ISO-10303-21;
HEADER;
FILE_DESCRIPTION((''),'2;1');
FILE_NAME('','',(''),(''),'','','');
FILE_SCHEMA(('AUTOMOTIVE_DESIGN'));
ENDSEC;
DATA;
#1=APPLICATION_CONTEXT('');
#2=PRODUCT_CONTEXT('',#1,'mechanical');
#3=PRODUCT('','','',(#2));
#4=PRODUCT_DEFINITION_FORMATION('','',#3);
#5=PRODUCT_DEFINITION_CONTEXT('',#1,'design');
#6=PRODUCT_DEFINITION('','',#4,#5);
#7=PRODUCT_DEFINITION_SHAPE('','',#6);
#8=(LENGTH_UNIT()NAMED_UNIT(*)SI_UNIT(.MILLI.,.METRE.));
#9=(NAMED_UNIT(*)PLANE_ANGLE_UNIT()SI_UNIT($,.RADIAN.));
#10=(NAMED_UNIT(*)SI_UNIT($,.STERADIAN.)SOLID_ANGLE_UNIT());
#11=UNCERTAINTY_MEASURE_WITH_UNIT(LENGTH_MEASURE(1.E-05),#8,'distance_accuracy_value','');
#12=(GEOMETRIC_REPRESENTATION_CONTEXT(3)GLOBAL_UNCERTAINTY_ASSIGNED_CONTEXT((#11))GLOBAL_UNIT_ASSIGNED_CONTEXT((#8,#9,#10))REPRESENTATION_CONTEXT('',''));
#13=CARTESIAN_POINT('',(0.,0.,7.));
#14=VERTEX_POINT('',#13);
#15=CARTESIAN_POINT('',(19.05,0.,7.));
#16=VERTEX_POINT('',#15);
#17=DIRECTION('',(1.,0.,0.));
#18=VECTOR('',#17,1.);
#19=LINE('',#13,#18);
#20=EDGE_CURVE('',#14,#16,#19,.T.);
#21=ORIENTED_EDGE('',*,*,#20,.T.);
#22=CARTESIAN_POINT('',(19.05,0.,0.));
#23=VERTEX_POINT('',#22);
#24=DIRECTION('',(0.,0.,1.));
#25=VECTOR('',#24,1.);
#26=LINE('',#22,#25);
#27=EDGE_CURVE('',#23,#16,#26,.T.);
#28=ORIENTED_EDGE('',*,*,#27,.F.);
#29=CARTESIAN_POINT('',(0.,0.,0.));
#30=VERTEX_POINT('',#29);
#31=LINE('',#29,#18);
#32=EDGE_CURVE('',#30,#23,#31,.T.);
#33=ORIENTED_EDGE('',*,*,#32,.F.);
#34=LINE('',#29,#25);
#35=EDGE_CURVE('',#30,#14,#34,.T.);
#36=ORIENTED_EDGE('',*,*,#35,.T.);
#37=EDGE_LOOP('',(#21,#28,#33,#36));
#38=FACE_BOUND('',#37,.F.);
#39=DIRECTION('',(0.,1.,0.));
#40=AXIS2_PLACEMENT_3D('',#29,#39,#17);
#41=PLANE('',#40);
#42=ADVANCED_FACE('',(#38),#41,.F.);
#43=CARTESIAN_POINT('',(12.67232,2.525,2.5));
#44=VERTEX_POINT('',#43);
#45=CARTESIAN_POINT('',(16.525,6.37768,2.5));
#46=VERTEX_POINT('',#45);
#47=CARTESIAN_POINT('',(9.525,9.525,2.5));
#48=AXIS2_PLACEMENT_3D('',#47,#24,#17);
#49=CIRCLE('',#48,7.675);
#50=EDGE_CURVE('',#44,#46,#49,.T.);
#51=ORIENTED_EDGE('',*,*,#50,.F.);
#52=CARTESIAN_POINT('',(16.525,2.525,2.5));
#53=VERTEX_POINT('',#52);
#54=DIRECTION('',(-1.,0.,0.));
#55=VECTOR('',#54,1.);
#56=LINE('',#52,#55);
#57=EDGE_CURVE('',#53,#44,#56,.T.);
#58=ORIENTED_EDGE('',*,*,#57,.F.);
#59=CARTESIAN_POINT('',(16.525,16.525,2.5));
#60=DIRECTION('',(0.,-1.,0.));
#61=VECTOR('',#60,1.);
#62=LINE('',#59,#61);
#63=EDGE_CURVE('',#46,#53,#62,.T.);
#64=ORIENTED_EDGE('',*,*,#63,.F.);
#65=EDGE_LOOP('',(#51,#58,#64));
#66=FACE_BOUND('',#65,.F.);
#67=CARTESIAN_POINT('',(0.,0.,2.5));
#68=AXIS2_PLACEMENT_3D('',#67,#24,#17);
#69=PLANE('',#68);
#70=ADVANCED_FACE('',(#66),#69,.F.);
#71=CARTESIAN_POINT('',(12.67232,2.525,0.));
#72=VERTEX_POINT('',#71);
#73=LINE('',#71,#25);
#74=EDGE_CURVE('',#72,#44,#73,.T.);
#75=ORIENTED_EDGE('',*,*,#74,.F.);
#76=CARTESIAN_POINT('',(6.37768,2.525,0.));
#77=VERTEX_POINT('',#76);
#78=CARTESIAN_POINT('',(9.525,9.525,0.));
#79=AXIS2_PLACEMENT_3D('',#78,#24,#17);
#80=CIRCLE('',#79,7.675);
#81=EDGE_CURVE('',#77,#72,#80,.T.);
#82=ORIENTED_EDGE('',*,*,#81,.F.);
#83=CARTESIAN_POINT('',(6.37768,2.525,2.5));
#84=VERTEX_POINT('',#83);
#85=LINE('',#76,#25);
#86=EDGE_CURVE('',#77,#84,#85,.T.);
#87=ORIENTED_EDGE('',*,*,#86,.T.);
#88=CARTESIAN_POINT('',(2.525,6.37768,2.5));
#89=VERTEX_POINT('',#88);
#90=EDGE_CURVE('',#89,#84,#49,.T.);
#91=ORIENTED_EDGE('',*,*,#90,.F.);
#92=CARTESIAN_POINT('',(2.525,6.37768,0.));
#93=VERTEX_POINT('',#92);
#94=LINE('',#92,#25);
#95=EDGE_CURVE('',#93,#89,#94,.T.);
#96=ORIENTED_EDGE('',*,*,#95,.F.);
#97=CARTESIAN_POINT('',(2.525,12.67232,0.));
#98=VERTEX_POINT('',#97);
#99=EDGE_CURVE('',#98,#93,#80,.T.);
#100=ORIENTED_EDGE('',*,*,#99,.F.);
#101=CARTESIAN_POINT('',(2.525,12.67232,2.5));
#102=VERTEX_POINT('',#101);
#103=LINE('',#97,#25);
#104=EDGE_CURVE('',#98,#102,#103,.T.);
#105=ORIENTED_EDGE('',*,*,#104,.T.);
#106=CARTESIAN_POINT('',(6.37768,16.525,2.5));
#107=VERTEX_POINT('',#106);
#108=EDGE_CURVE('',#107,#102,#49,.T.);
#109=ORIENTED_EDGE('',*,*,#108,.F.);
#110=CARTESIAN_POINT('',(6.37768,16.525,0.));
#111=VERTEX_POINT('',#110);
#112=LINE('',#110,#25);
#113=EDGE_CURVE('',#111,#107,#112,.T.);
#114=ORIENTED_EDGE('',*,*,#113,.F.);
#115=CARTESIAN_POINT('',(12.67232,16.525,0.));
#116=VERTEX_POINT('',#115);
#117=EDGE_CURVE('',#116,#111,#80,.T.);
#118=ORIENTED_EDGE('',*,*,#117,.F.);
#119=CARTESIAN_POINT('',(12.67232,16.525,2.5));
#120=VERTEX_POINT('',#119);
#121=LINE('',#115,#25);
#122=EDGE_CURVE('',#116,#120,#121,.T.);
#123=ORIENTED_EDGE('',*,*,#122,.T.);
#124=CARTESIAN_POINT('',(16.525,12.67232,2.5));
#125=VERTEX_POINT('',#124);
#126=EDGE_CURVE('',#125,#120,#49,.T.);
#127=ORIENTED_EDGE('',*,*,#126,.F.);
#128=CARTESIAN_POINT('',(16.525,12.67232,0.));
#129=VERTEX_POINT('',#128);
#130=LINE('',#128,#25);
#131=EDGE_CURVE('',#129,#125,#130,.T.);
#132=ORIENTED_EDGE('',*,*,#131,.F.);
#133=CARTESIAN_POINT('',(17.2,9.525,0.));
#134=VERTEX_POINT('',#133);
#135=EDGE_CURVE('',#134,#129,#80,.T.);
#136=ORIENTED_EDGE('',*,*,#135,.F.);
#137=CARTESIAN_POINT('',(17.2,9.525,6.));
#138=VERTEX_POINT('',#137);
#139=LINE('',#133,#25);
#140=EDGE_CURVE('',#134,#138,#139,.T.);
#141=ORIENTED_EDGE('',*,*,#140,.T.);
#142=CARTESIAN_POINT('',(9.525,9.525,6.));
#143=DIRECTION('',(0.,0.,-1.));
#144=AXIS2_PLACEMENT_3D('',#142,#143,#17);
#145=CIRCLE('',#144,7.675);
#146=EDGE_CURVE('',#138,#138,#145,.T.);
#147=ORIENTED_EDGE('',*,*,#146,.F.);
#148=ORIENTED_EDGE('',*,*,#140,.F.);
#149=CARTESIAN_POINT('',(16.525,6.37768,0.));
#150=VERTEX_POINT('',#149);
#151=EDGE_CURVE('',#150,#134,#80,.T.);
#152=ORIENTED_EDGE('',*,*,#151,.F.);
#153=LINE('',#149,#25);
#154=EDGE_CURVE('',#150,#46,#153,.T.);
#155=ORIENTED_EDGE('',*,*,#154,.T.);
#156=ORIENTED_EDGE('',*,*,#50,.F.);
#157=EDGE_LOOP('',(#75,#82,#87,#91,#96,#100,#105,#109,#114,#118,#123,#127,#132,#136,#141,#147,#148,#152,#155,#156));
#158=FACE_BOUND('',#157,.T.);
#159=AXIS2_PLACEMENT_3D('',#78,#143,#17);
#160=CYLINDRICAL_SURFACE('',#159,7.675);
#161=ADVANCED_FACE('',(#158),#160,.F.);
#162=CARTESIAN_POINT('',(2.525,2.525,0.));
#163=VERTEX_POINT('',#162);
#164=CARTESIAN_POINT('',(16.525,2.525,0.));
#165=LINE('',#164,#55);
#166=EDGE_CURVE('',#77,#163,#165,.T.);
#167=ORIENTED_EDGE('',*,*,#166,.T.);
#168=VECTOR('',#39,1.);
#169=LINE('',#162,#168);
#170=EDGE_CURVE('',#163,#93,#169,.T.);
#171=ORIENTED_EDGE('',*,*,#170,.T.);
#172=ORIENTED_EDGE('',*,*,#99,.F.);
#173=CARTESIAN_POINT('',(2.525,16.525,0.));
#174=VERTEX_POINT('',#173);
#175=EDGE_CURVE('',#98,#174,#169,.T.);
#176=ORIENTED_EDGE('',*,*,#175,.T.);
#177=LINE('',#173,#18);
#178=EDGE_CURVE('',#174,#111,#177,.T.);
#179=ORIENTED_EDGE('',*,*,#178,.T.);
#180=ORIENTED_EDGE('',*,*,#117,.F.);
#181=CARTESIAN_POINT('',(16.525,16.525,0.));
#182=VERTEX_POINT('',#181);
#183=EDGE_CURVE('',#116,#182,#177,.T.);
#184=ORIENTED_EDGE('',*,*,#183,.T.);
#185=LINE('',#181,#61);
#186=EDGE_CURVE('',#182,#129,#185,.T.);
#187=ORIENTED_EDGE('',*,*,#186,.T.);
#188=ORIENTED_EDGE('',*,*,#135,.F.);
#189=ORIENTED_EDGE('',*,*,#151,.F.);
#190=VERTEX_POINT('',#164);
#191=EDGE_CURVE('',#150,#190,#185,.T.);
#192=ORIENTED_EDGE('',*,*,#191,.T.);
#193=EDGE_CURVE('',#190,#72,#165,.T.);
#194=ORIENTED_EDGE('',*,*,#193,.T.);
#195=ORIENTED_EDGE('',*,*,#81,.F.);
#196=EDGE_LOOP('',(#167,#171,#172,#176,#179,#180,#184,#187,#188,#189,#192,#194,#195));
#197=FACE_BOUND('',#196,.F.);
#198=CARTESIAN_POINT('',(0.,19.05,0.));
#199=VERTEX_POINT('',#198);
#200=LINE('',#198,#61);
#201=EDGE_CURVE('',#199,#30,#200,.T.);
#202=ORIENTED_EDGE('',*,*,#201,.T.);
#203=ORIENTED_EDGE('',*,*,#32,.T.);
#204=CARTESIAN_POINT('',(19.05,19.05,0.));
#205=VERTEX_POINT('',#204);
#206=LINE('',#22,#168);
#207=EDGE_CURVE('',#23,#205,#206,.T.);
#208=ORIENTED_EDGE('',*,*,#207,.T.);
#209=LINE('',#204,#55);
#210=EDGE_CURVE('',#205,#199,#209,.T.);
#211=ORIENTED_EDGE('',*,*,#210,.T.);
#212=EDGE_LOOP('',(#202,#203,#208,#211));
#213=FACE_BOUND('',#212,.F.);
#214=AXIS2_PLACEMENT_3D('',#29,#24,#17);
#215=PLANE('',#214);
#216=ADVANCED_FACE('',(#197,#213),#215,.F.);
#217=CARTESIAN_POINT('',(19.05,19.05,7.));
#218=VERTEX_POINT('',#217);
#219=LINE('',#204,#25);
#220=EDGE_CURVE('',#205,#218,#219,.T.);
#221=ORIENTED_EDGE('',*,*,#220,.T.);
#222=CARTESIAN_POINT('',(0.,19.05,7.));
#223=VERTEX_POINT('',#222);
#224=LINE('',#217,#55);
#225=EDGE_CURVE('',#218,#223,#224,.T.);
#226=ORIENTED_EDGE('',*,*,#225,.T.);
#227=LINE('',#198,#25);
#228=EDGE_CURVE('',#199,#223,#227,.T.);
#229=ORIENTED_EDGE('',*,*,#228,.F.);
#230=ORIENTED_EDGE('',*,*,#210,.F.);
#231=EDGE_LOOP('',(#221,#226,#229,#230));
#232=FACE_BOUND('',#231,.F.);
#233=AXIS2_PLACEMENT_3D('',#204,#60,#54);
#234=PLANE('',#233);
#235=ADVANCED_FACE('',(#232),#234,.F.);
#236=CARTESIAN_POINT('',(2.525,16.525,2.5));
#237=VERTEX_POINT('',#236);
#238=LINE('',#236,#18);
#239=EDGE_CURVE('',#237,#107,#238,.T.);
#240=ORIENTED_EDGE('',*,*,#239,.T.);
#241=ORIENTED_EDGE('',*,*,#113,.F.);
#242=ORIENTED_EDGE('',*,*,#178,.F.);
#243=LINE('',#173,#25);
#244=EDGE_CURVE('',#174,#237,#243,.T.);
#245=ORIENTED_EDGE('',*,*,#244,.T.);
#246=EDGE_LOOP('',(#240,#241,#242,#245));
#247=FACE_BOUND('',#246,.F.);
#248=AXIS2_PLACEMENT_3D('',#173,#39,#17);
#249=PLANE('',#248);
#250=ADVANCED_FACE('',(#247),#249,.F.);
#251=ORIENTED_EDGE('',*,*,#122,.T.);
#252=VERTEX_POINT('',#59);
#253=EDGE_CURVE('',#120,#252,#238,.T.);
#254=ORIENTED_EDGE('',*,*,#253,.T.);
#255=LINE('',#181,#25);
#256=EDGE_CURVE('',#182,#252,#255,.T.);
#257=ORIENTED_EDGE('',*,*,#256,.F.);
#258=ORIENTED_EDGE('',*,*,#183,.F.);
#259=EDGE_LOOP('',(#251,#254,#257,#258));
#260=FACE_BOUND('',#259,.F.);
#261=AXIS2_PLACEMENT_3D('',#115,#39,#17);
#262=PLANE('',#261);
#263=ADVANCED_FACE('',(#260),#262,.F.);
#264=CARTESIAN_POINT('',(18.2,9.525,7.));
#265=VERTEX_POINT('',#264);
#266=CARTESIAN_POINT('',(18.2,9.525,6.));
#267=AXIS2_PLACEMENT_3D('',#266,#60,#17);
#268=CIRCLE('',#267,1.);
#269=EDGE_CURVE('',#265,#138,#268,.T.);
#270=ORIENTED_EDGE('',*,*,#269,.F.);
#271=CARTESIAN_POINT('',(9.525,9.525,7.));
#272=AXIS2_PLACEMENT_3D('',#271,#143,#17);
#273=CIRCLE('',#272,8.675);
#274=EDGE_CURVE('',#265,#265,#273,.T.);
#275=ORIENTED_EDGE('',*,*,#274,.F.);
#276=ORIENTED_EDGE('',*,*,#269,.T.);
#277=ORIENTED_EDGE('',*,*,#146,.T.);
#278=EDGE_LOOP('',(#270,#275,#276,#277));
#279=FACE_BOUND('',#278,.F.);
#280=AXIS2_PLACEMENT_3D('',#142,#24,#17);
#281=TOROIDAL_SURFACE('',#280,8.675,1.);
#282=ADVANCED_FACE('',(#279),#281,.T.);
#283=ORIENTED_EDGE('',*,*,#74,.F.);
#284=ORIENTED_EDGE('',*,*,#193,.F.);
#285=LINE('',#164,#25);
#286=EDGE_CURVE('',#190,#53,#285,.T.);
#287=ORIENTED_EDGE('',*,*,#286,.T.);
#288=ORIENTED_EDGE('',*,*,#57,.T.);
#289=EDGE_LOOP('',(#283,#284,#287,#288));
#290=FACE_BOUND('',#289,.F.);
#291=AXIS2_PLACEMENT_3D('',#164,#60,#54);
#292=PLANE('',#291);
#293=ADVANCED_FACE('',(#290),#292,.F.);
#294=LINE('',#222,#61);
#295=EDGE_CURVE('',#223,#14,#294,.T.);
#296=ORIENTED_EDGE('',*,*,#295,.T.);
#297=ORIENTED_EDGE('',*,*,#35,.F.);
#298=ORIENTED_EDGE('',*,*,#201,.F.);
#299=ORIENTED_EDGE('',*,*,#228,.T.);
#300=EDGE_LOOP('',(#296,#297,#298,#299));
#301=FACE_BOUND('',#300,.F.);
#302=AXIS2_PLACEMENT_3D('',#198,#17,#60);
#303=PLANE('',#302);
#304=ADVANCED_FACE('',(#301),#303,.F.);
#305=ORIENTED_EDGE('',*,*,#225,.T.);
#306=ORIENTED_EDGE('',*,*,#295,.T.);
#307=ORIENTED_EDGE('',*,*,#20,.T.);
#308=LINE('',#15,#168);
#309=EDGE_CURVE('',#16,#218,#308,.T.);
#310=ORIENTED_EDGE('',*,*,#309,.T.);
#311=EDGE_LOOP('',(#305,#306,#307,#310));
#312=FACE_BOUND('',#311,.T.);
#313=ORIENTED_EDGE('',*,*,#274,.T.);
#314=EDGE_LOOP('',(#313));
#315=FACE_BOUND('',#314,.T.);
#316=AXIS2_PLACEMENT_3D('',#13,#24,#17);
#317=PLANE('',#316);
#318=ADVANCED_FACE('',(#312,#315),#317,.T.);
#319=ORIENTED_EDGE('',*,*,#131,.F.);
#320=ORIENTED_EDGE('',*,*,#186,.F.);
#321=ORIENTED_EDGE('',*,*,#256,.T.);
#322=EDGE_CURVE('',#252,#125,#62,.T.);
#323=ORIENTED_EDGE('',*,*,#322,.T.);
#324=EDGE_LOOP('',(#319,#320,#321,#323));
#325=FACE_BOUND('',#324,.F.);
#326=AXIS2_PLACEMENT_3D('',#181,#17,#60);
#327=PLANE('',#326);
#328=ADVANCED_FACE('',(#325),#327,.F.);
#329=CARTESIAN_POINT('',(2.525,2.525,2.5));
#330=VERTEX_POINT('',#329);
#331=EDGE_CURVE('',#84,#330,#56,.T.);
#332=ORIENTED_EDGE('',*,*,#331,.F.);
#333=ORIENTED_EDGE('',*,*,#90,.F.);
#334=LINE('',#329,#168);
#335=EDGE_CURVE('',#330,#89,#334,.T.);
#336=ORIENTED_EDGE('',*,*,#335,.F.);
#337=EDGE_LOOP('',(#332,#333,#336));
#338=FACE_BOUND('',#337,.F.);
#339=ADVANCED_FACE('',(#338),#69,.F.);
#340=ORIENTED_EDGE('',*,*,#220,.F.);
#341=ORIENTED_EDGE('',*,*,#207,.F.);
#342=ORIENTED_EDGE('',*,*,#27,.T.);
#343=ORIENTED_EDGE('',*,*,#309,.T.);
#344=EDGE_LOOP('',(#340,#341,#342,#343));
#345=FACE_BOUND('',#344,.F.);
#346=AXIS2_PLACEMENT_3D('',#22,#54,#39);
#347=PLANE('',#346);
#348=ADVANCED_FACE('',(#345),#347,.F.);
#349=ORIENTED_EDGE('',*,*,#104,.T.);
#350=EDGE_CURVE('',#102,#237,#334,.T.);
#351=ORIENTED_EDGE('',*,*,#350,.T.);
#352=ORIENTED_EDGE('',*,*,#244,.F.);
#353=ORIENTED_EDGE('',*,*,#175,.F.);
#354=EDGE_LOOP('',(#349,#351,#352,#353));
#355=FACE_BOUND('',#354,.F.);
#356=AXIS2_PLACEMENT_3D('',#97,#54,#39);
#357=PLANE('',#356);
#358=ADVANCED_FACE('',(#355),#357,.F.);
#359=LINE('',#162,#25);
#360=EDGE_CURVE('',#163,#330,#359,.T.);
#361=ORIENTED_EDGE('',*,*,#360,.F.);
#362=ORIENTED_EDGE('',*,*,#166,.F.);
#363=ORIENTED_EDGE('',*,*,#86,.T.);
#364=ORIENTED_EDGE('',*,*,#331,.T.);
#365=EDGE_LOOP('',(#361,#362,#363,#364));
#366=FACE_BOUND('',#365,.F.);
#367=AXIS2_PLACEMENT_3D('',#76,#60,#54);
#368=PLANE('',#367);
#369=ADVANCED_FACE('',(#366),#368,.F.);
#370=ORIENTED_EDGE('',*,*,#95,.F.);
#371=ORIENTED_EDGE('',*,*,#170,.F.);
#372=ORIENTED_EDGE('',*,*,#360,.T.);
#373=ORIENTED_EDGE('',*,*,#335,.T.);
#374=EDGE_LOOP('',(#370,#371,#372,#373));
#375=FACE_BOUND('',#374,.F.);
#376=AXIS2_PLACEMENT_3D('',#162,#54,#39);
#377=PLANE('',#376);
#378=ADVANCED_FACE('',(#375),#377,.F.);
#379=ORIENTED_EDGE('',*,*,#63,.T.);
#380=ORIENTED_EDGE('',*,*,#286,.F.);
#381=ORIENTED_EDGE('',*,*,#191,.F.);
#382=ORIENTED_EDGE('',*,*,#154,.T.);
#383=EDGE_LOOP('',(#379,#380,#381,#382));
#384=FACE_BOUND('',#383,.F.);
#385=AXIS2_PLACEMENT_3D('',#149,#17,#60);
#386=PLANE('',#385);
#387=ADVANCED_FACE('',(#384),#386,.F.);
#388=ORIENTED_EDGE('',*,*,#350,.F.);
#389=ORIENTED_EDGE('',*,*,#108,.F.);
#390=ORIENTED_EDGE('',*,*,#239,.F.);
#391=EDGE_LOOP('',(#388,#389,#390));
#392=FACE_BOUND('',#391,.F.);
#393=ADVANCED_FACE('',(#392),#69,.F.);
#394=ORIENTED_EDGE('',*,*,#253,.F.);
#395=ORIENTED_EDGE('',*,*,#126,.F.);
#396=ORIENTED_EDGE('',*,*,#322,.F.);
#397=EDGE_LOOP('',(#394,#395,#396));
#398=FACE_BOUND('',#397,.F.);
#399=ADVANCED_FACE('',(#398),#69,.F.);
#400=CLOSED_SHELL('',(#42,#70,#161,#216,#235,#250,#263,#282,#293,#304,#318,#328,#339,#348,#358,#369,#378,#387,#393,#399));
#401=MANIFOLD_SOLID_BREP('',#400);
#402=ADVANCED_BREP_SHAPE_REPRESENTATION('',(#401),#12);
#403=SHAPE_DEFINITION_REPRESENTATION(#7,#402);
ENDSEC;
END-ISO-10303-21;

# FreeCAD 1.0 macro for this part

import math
import FreeCAD as App
import Part
import Sketcher
from FreeCAD import Vector
Q = App.Units.Quantity


def edges_at(feature, points):
    """Names of the edges that pass closest to the given points."""
    edges = feature.Shape.Edges
    near = lambda p: min(range(len(edges)), key=lambda i: edges[i].distToShape(Part.Vertex(*p))[0])
    return sorted({f"Edge{near(p) + 1}" for p in points})

doc = App.newDocument("Part")
params = doc.addObject("Spreadsheet::Sheet", "Params")
for row, (alias, value) in enumerate([
    ("sketch1_diameter", "15.35 mm"),
    ("sketch1_width", "19.05 mm"),
    ("pad1_length", "7 mm"),
    ("sketch2_width", "7 mm"),
    ("pocket1_length", "2.5 mm"),
    ("fillet_radius", "1 mm"),
], start=1):
    params.set(f"A{row}", alias)
    params.set(f"B{row}", "=" + value)
    params.setAlias(f"B{row}", alias)

body = doc.addObject("PartDesign::Body", "Body")

# Sketch on XY plane
sketch1 = body.newObject("Sketcher::SketchObject", "Sketch")
sketch1.AttachmentSupport = (doc.getObject("XY_Plane"), [""])
sketch1.MapMode = "FlatFace"
sketch1.addGeometry(Part.LineSegment(Vector(0, 19.05, 0), Vector(0, 0, 0)), False)
sketch1.addGeometry(Part.LineSegment(Vector(0, 0, 0), Vector(19.05, 0, 0)), False)
sketch1.addGeometry(Part.LineSegment(Vector(19.05, 0, 0), Vector(19.05, 19.05, 0)), False)
sketch1.addGeometry(Part.LineSegment(Vector(19.05, 19.05, 0), Vector(0, 19.05, 0)), False)
sketch1.addGeometry(Part.Circle(Vector(9.525, 9.525, 0), Vector(0, 0, 1), 7.675), False)
sketch1.addConstraint(Sketcher.Constraint("Coincident", 0, 2, 1, 1))
sketch1.addConstraint(Sketcher.Constraint("Coincident", 1, 2, 2, 1))
sketch1.addConstraint(Sketcher.Constraint("Coincident", 2, 2, 3, 1))
sketch1.addConstraint(Sketcher.Constraint("Coincident", 3, 2, 0, 1))
sketch1.addConstraint(Sketcher.Constraint("Vertical", 0))
sketch1.addConstraint(Sketcher.Constraint("Horizontal", 1))
sketch1.addConstraint(Sketcher.Constraint("Vertical", 2))
sketch1.addConstraint(Sketcher.Constraint("Horizontal", 3))
sketch1.addConstraint(Sketcher.Constraint("Coincident", 0, 2, -1, 1))
sketch1.addConstraint(Sketcher.Constraint("Equal", 3, 0))
sketch1.addConstraint(Sketcher.Constraint("Diameter", 4, Q("15.35 mm")))
sketch1.addConstraint(Sketcher.Constraint("DistanceX", 1, 1, 1, 2, Q("19.05 mm")))
sketch1.addConstraint(Sketcher.Constraint("DistanceX", -1, 1, 4, 3, Q("9.525 mm")))
sketch1.addConstraint(Sketcher.Constraint("DistanceY", -1, 1, 4, 3, Q("9.525 mm")))
sketch1.setExpression("Constraints[10]", "Params.sketch1_diameter")
sketch1.setExpression("Constraints[11]", "Params.sketch1_width")
pad1 = body.newObject("PartDesign::Pad", "Pad")
pad1.Profile = sketch1
pad1.setExpression("Length", "Params.pad1_length")

# Sketch on XY plane
sketch2 = body.newObject("Sketcher::SketchObject", "Sketch001")
sketch2.AttachmentSupport = (doc.getObject("XY_Plane"), [""])
sketch2.MapMode = "FlatFace"
sketch2.addGeometry(Part.ArcOfCircle(Part.Circle(Vector(9.525, 9.525, 0), Vector(0, 0, 1), 7.675), math.radians(24.209503), math.radians(65.790497)), False)
sketch2.addGeometry(Part.LineSegment(Vector(16.525, 12.67232, 0), Vector(16.525, 16.525, 0)), False)
sketch2.addGeometry(Part.LineSegment(Vector(16.525, 16.525, 0), Vector(12.67232, 16.525, 0)), False)
sketch2.addGeometry(Part.LineSegment(Vector(16.525, 2.525, 0), Vector(16.525, 6.37768, 0)), False)
sketch2.addGeometry(Part.ArcOfCircle(Part.Circle(Vector(9.525, 9.525, 0), Vector(0, 0, 1), 7.675), math.radians(-65.790497), math.radians(-24.209503)), False)
sketch2.addGeometry(Part.LineSegment(Vector(12.67232, 2.525, 0), Vector(16.525, 2.525, 0)), False)
sketch2.addGeometry(Part.ArcOfCircle(Part.Circle(Vector(9.525, 9.525, 0), Vector(0, 0, 1), 7.675), math.radians(114.209503), math.radians(155.790497)), False)
sketch2.addGeometry(Part.LineSegment(Vector(6.37768, 16.525, 0), Vector(2.525, 16.525, 0)), False)
sketch2.addGeometry(Part.LineSegment(Vector(2.525, 16.525, 0), Vector(2.525, 12.67232, 0)), False)
sketch2.addGeometry(Part.LineSegment(Vector(2.525, 2.525, 0), Vector(6.37768, 2.525, 0)), False)
sketch2.addGeometry(Part.ArcOfCircle(Part.Circle(Vector(9.525, 9.525, 0), Vector(0, 0, 1), 7.675), math.radians(-155.790497), math.radians(-114.209503)), False)
sketch2.addGeometry(Part.LineSegment(Vector(2.525, 6.37768, 0), Vector(2.525, 2.525, 0)), False)
sketch2.addConstraint(Sketcher.Constraint("Coincident", 0, 1, 1, 1))
sketch2.addConstraint(Sketcher.Constraint("Coincident", 1, 2, 2, 1))
sketch2.addConstraint(Sketcher.Constraint("Coincident", 2, 2, 0, 2))
sketch2.addConstraint(Sketcher.Constraint("Coincident", 3, 2, 4, 2))
sketch2.addConstraint(Sketcher.Constraint("Coincident", 4, 1, 5, 1))
sketch2.addConstraint(Sketcher.Constraint("Coincident", 5, 2, 3, 1))
sketch2.addConstraint(Sketcher.Constraint("Coincident", 6, 1, 7, 1))
sketch2.addConstraint(Sketcher.Constraint("Coincident", 7, 2, 8, 1))
sketch2.addConstraint(Sketcher.Constraint("Coincident", 8, 2, 6, 2))
sketch2.addConstraint(Sketcher.Constraint("Coincident", 9, 2, 10, 2))
sketch2.addConstraint(Sketcher.Constraint("Coincident", 10, 1, 11, 1))
sketch2.addConstraint(Sketcher.Constraint("Coincident", 11, 2, 9, 1))
sketch2.addConstraint(Sketcher.Constraint("Vertical", 1))
sketch2.addConstraint(Sketcher.Constraint("Horizontal", 2))
sketch2.addConstraint(Sketcher.Constraint("Vertical", 3))
sketch2.addConstraint(Sketcher.Constraint("Horizontal", 5))
sketch2.addConstraint(Sketcher.Constraint("Horizontal", 7))
sketch2.addConstraint(Sketcher.Constraint("Vertical", 8))
sketch2.addConstraint(Sketcher.Constraint("Horizontal", 9))
sketch2.addConstraint(Sketcher.Constraint("Vertical", 11))
sketch2.addConstraint(Sketcher.Constraint("Coincident", 4, 3, 0, 3))
sketch2.addConstraint(Sketcher.Constraint("Coincident", 6, 3, 0, 3))
sketch2.addConstraint(Sketcher.Constraint("Coincident", 10, 3, 0, 3))
sketch2.addConstraint(Sketcher.Constraint("Equal", 0, 4))
sketch2.addConstraint(Sketcher.Constraint("Equal", 4, 6))
sketch2.addConstraint(Sketcher.Constraint("Equal", 6, 10))
sketch2.addConstraint(Sketcher.Constraint("Horizontal", 2, 2, 6, 1))
sketch2.addConstraint(Sketcher.Constraint("Horizontal", 0, 1, 8, 2))
sketch2.addConstraint(Sketcher.Constraint("Horizontal", 5, 2, 9, 2))
sketch2.addConstraint(Sketcher.Constraint("Horizontal", 3, 2, 10, 1))
sketch2.addConstraint(Sketcher.Constraint("Vertical", 1, 2, 3, 2))
sketch2.addConstraint(Sketcher.Constraint("Vertical", 2, 2, 4, 1))
sketch2.addConstraint(Sketcher.Constraint("Equal", 9, 1))
sketch2.addConstraint(Sketcher.Constraint("Radius", 0, Q("7.675 mm")))
sketch2.addConstraint(Sketcher.Constraint("DistanceX", 0, 3, 0, 1, Q("7 mm")))
sketch2.addConstraint(Sketcher.Constraint("DistanceX", -1, 1, 0, 3, Q("9.525 mm")))
sketch2.addConstraint(Sketcher.Constraint("DistanceY", -1, 1, 0, 3, Q("9.525 mm")))
sketch2.setExpression("Constraints[34]", "Params.sketch2_width")
pocket1 = body.newObject("PartDesign::Pocket", "Pocket")
pocket1.Profile = sketch2
pocket1.setExpression("Length", "Params.pocket1_length")
pocket1.Reversed = True
doc.recompute()

fillet = body.newObject("PartDesign::Fillet", "Fillet")
fillet.Base = (pocket1, edges_at(pocket1, [(2.369, 12.3, 7)]))
fillet.setExpression("Radius", "Params.fillet_radius")

doc.recompute()
